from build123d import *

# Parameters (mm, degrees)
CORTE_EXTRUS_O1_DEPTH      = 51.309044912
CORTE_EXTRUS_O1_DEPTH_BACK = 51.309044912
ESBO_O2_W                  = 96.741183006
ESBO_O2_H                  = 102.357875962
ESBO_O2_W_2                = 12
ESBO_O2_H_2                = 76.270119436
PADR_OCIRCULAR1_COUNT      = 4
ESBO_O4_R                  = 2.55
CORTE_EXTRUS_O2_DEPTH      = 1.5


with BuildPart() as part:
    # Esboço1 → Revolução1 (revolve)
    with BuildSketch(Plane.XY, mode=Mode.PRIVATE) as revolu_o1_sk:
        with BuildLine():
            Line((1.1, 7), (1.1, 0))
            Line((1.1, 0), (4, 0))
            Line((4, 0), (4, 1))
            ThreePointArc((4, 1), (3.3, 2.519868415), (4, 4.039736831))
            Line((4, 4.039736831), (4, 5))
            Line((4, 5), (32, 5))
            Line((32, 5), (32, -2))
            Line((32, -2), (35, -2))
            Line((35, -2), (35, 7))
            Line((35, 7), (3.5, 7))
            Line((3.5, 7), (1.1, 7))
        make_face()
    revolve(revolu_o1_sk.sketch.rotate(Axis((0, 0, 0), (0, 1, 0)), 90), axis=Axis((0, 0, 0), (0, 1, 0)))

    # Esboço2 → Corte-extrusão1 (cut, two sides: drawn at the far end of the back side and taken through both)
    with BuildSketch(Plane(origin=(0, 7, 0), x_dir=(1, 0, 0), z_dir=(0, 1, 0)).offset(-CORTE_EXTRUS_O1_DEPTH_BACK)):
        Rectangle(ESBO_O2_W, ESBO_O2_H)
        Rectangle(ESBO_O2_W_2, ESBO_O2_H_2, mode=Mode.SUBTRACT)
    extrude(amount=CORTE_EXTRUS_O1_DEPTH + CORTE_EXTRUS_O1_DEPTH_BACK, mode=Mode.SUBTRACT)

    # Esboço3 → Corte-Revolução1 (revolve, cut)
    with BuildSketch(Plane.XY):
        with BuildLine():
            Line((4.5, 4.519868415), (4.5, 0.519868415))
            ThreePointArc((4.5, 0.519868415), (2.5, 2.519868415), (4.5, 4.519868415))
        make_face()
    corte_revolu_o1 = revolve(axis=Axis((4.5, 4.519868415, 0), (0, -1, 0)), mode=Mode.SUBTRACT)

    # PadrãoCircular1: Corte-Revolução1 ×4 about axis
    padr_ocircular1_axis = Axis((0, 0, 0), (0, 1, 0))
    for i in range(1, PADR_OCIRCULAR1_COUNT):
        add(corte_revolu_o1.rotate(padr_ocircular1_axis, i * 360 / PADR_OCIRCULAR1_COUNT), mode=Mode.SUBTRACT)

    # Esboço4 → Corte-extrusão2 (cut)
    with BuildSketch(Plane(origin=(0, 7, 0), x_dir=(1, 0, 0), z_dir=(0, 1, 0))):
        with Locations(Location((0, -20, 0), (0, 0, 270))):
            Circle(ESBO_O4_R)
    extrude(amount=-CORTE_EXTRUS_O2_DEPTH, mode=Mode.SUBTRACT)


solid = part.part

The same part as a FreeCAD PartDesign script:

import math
import FreeCAD as App
import Part
import Sketcher

V = App.Vector

doc = App.newDocument("Part")
params = doc.addObject("Spreadsheet::Sheet", "Params")
for row, (alias, value) in enumerate([
    ("sketch1_radius", "2 mm"),
    ("sketch1_width", "28 mm"),
    ("sketch1_width2", "3 mm"),
    ("sketch1_height", "7 mm"),
    ("sketch1_height2", "1 mm"),
    ("revolution_angle", "360 deg"),
    ("sketch2_width", "12 mm"),
    ("sketch3_radius", "2 mm"),
    ("groove_angle", "360 deg"),
    ("sketch4_diameter", "5.1 mm"),
    ("pocket2_length", "1.5 mm"),
], start=1):
    params.set(f"A{row}", alias)
    params.set(f"B{row}", "=" + value)
    params.setAlias(f"B{row}", alias)

body = doc.addObject("PartDesign::Body", "Body")

# Sketch on XY plane
sketch1 = body.newObject("Sketcher::SketchObject", "Sketch")
sketch1.AttachmentSupport = (doc.getObject("XY_Plane"), [""])
sketch1.MapMode = "FlatFace"
sketch1.addGeometry(Part.LineSegment(V(1.1, 7, 0), V(1.1, 0, 0)), False)
sketch1.addGeometry(Part.LineSegment(V(1.1, 0, 0), V(4, 0, 0)), False)
sketch1.addGeometry(Part.LineSegment(V(4, 0, 0), V(4, 1, 0)), False)
sketch1.addGeometry(Part.ArcOfCircle(Part.Circle(V(5.3, 2.5, 0), V(0, 0, 1), 2), math.radians(131), math.radians(229)), False)
sketch1.addGeometry(Part.LineSegment(V(4, 4, 0), V(4, 5, 0)), False)
sketch1.addGeometry(Part.LineSegment(V(4, 5, 0), V(32, 5, 0)), False)
sketch1.addGeometry(Part.LineSegment(V(32, 5, 0), V(32, -2, 0)), False)
sketch1.addGeometry(Part.LineSegment(V(32, -2, 0), V(35, -2, 0)), False)
sketch1.addGeometry(Part.LineSegment(V(35, -2, 0), V(35, 7, 0)), False)
sketch1.addGeometry(Part.LineSegment(V(35, 7, 0), V(1.1, 7, 0)), False)
sketch1.addConstraint(Sketcher.Constraint("Coincident", 0, 2, 1, 1))
sketch1.addConstraint(Sketcher.Constraint("Coincident", 1, 2, 2, 1))
sketch1.addConstraint(Sketcher.Constraint("Coincident", 2, 2, 3, 2))
sketch1.addConstraint(Sketcher.Constraint("Coincident", 3, 1, 4, 1))
sketch1.addConstraint(Sketcher.Constraint("Coincident", 4, 2, 5, 1))
sketch1.addConstraint(Sketcher.Constraint("Coincident", 5, 2, 6, 1))
sketch1.addConstraint(Sketcher.Constraint("Coincident", 6, 2, 7, 1))
sketch1.addConstraint(Sketcher.Constraint("Coincident", 7, 2, 8, 1))
sketch1.addConstraint(Sketcher.Constraint("Coincident", 8, 2, 9, 1))
sketch1.addConstraint(Sketcher.Constraint("Coincident", 9, 2, 0, 1))
sketch1.addConstraint(Sketcher.Constraint("Vertical", 0))
sketch1.addConstraint(Sketcher.Constraint("Horizontal", 1))
sketch1.addConstraint(Sketcher.Constraint("Vertical", 2))
sketch1.addConstraint(Sketcher.Constraint("Vertical", 4))
sketch1.addConstraint(Sketcher.Constraint("Horizontal", 5))
sketch1.addConstraint(Sketcher.Constraint("Vertical", 6))
sketch1.addConstraint(Sketcher.Constraint("Horizontal", 7))
sketch1.addConstraint(Sketcher.Constraint("Vertical", 8))
sketch1.addConstraint(Sketcher.Constraint("Horizontal", 9))
sketch1.addConstraint(Sketcher.Constraint("PointOnObject", 0, 2, -1))
sketch1.addConstraint(Sketcher.Constraint("Vertical", 2, 2, 3, 1))
sketch1.addConstraint(Sketcher.Constraint("Equal", 0, 6))
sketch1.addConstraint(Sketcher.Constraint("Radius", 3, 2.0))
sketch1.addConstraint(Sketcher.Constraint("DistanceX", 5, 1, 5, 2, 28.0))
sketch1.addConstraint(Sketcher.Constraint("DistanceX", 7, 1, 7, 2, 3.0))
sketch1.addConstraint(Sketcher.Constraint("DistanceY", 0, 2, 0, 1, 7.0))
sketch1.addConstraint(Sketcher.Constraint("DistanceY", 2, 1, 2, 2, 1.0))
sketch1.addConstraint(Sketcher.Constraint("DistanceY", 8, 1, 8, 2, 9.0))
sketch1.addConstraint(Sketcher.Constraint("DistanceX", 1, 1, 1, 2, 2.9))
sketch1.addConstraint(Sketcher.Constraint("DistanceX", -1, 1, 1, 2, 4.0))
sketch1.addConstraint(Sketcher.Constraint("DistanceX", -1, 1, 3, 3, 5.3))
sketch1.setExpression("Constraints[22]", "Params.sketch1_radius")
sketch1.setExpression("Constraints[23]", "Params.sketch1_width")
sketch1.setExpression("Constraints[24]", "Params.sketch1_width2")
sketch1.setExpression("Constraints[25]", "Params.sketch1_height")
sketch1.setExpression("Constraints[26]", "Params.sketch1_height2")
revolution = body.newObject("PartDesign::Revolution", "Revolution")
revolution.Profile = sketch1
revolution.ReferenceAxis = (sketch1, ["V_Axis"])
revolution.setExpression("Angle", "Params.revolution_angle")

# Sketch on XZ plane
sketch2 = body.newObject("Sketcher::SketchObject", "Sketch001")
sketch2.AttachmentSupport = (doc.getObject("XZ_Plane"), [""])
sketch2.MapMode = "FlatFace"
sketch2.AttachmentOffset = App.Placement(V(0, 0, -7), App.Rotation())
sketch2.addGeometry(Part.LineSegment(V(-48, -51, 0), V(-48, 51, 0)), False)
sketch2.addGeometry(Part.LineSegment(V(-48, 51, 0), V(48, 51, 0)), False)
sketch2.addGeometry(Part.LineSegment(V(48, 51, 0), V(48, -51, 0)), False)
sketch2.addGeometry(Part.LineSegment(V(48, -51, 0), V(-48, -51, 0)), False)
sketch2.addGeometry(Part.LineSegment(V(6, 38, 0), V(-6, 38, 0)), False)
sketch2.addGeometry(Part.LineSegment(V(-6, 38, 0), V(-6, -38, 0)), False)
sketch2.addGeometry(Part.LineSegment(V(-6, -38, 0), V(6, -38, 0)), False)
sketch2.addGeometry(Part.LineSegment(V(6, -38, 0), V(6, 38, 0)), False)
sketch2.addConstraint(Sketcher.Constraint("Coincident", 0, 2, 1, 1))
sketch2.addConstraint(Sketcher.Constraint("Coincident", 1, 2, 2, 1))
sketch2.addConstraint(Sketcher.Constraint("Coincident", 2, 2, 3, 1))
sketch2.addConstraint(Sketcher.Constraint("Coincident", 3, 2, 0, 1))
sketch2.addConstraint(Sketcher.Constraint("Coincident", 4, 2, 5, 1))
sketch2.addConstraint(Sketcher.Constraint("Coincident", 5, 2, 6, 1))
sketch2.addConstraint(Sketcher.Constraint("Coincident", 6, 2, 7, 1))
sketch2.addConstraint(Sketcher.Constraint("Coincident", 7, 2, 4, 1))
sketch2.addConstraint(Sketcher.Constraint("Vertical", 0))
sketch2.addConstraint(Sketcher.Constraint("Horizontal", 1))
sketch2.addConstraint(Sketcher.Constraint("Vertical", 2))
sketch2.addConstraint(Sketcher.Constraint("Horizontal", 3))
sketch2.addConstraint(Sketcher.Constraint("Horizontal", 4))
sketch2.addConstraint(Sketcher.Constraint("Vertical", 5))
sketch2.addConstraint(Sketcher.Constraint("Horizontal", 6))
sketch2.addConstraint(Sketcher.Constraint("Vertical", 7))
sketch2.addConstraint(Sketcher.Constraint("Symmetric", 0, 2, 2, 2, -1, 1))
sketch2.addConstraint(Sketcher.Constraint("Symmetric", 4, 2, 6, 2, -1, 1))
sketch2.addConstraint(Sketcher.Constraint("DistanceX", 4, 2, 4, 1, 12.0))
sketch2.addConstraint(Sketcher.Constraint("DistanceY", 5, 2, 5, 1, 76.270119))
sketch2.addConstraint(Sketcher.Constraint("DistanceX", 1, 1, 1, 2, 96.741183))
sketch2.addConstraint(Sketcher.Constraint("DistanceY", 0, 1, 0, 2, 102.357876))
sketch2.setExpression("Constraints[18]", "Params.sketch2_width")
pocket1 = body.newObject("PartDesign::Pocket", "Pocket")
pocket1.Profile = sketch2
pocket1.Type = "ThroughAll"
pocket1.Midplane = True

# Sketch on XY plane
sketch3 = body.newObject("Sketcher::SketchObject", "Sketch002")
sketch3.AttachmentSupport = (doc.getObject("XY_Plane"), [""])
sketch3.MapMode = "FlatFace"
sketch3.addGeometry(Part.LineSegment(V(4.5, 0.5, 0), V(4.5, 4.5, 0)), False)
sketch3.addGeometry(Part.ArcOfCircle(Part.Circle(V(4.5, 2.5, 0), V(0, 0, 1), 2), math.radians(90), math.radians(270)), False)
sketch3.addGeometry(Part.LineSegment(V(4.5, 4.5, 0), V(4.5, 0.5, 0)), True)  # axis
sketch3.addConstraint(Sketcher.Constraint("Coincident", 0, 1, 1, 2))
sketch3.addConstraint(Sketcher.Constraint("Coincident", 1, 1, 0, 2))
sketch3.addConstraint(Sketcher.Constraint("Vertical", 0))
sketch3.addConstraint(Sketcher.Constraint("Vertical", 2))
sketch3.addConstraint(Sketcher.Constraint("Coincident", 2, 1, 1, 1))
sketch3.addConstraint(Sketcher.Constraint("Vertical", 1, 3, 0, 1))
sketch3.addConstraint(Sketcher.Constraint("Equal", 0, 2))
sketch3.addConstraint(Sketcher.Constraint("Radius", 1, 2.0))
sketch3.addConstraint(Sketcher.Constraint("DistanceX", -1, 1, 1, 3, 4.5))
sketch3.addConstraint(Sketcher.Constraint("DistanceY", -1, 1, 1, 3, 2.519868))
sketch3.setExpression("Constraints[7]", "Params.sketch3_radius")
groove = body.newObject("PartDesign::Groove", "Groove")
groove.Profile = sketch3
groove.ReferenceAxis = (sketch3, ["Axis0"])
groove.setExpression("Angle", "Params.groove_angle")
doc.recompute()

polarpattern = body.newObject("PartDesign::PolarPattern", "PolarPattern")
polarpattern.Originals = [groove]
polarpattern.Axis = (doc.getObject("Y_Axis"), [""])
polarpattern.Angle = 360
polarpattern.Occurrences = 4
body.Tip = polarpattern

# Sketch on XZ plane
sketch4 = body.newObject("Sketcher::SketchObject", "Sketch003")
sketch4.AttachmentSupport = (doc.getObject("XZ_Plane"), [""])
sketch4.MapMode = "FlatFace"
sketch4.AttachmentOffset = App.Placement(V(0, 0, -7), App.Rotation())
sketch4.addGeometry(Part.Circle(V(0, 20, 0), V(0, 0, 1), 2.5), False)
sketch4.addConstraint(Sketcher.Constraint("PointOnObject", 0, 3, -2))
sketch4.addConstraint(Sketcher.Constraint("Diameter", 0, 5.1))
sketch4.addConstraint(Sketcher.Constraint("DistanceY", -1, 1, 0, 3, 20.0))
sketch4.setExpression("Constraints[1]", "Params.sketch4_diameter")
pocket2 = body.newObject("PartDesign::Pocket", "Pocket001")
pocket2.Profile = sketch4
pocket2.setExpression("Length", "Params.pocket2_length")
pocket2.Reversed = True

doc.recompute()
